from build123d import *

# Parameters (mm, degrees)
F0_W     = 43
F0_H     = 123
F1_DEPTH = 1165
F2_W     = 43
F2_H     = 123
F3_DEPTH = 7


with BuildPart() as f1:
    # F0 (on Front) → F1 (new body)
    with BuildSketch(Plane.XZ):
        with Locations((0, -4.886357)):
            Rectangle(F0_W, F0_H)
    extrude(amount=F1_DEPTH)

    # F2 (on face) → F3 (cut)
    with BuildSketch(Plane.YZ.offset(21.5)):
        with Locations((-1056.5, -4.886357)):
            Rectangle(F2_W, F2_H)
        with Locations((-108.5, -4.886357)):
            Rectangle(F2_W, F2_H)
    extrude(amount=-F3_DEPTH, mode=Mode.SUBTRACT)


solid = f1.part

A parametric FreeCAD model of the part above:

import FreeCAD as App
import Part
import Sketcher
Q = App.Units.Quantity

doc = App.newDocument("Part")
body = doc.addObject("PartDesign::Body", "Body")

# Sketch on XZ plane
sketch1 = body.newObject("Sketcher::SketchObject", "Sketch")
sketch1.AttachmentSupport = (doc.getObject("XZ_Plane"), [""])
sketch1.MapMode = "FlatFace"
sketch1.addGeometry(Part.LineSegment(App.Vector(-22, 57, 0), App.Vector(-22, -66, 0)), False)
sketch1.addGeometry(Part.LineSegment(App.Vector(-22, -66, 0), App.Vector(22, -66, 0)), False)
sketch1.addGeometry(Part.LineSegment(App.Vector(22, -66, 0), App.Vector(22, 57, 0)), False)
sketch1.addGeometry(Part.LineSegment(App.Vector(22, 57, 0), App.Vector(-22, 57, 0)), False)
sketch1.addConstraint(Sketcher.Constraint("Coincident", 0, 2, 1, 1))
sketch1.addConstraint(Sketcher.Constraint("Coincident", 1, 2, 2, 1))
sketch1.addConstraint(Sketcher.Constraint("Coincident", 2, 2, 3, 1))
sketch1.addConstraint(Sketcher.Constraint("Coincident", 3, 2, 0, 1))
sketch1.addConstraint(Sketcher.Constraint("Vertical", 0))
sketch1.addConstraint(Sketcher.Constraint("Horizontal", 1))
sketch1.addConstraint(Sketcher.Constraint("Vertical", 2))
sketch1.addConstraint(Sketcher.Constraint("Horizontal", 3))
sketch1.addConstraint(Sketcher.Constraint("DistanceX", 1, 1, 1, 2, Q("43 mm")))
sketch1.addConstraint(Sketcher.Constraint("DistanceY", 0, 2, 0, 1, Q("123 mm")))
sketch1.addConstraint(Sketcher.Constraint("DistanceX", 0, 2, -1, 1, Q("21.5 mm")))
sketch1.addConstraint(Sketcher.Constraint("DistanceY", 0, 2, -1, 1, Q("66.386357 mm")))
pad1 = body.newObject("PartDesign::Pad", "Pad")
pad1.Profile = sketch1
pad1.Length = 1165

# Sketch on YZ plane
sketch2 = body.newObject("Sketcher::SketchObject", "Sketch001")
sketch2.AttachmentSupport = (doc.getObject("YZ_Plane"), [""])
sketch2.MapMode = "FlatFace"
sketch2.AttachmentOffset = App.Placement(App.Vector(0, 0, 21.5), App.Rotation())
sketch2.addGeometry(Part.LineSegment(App.Vector(-1078, 57, 0), App.Vector(-1078, -66, 0)), False)
sketch2.addGeometry(Part.LineSegment(App.Vector(-1078, -66, 0), App.Vector(-1035, -66, 0)), False)
sketch2.addGeometry(Part.LineSegment(App.Vector(-1035, -66, 0), App.Vector(-1035, 57, 0)), False)
sketch2.addGeometry(Part.LineSegment(App.Vector(-1035, 57, 0), App.Vector(-1078, 57, 0)), False)
sketch2.addGeometry(Part.LineSegment(App.Vector(-130, 57, 0), App.Vector(-130, -66, 0)), False)
sketch2.addGeometry(Part.LineSegment(App.Vector(-130, -66, 0), App.Vector(-87, -66, 0)), False)
sketch2.addGeometry(Part.LineSegment(App.Vector(-87, -66, 0), App.Vector(-87, 57, 0)), False)
sketch2.addGeometry(Part.LineSegment(App.Vector(-87, 57, 0), App.Vector(-130, 57, 0)), False)
sketch2.addConstraint(Sketcher.Constraint("Coincident", 0, 2, 1, 1))
sketch2.addConstraint(Sketcher.Constraint("Coincident", 1, 2, 2, 1))
sketch2.addConstraint(Sketcher.Constraint("Coincident", 2, 2, 3, 1))
sketch2.addConstraint(Sketcher.Constraint("Coincident", 3, 2, 0, 1))
sketch2.addConstraint(Sketcher.Constraint("Coincident", 4, 2, 5, 1))
sketch2.addConstraint(Sketcher.Constraint("Coincident", 5, 2, 6, 1))
sketch2.addConstraint(Sketcher.Constraint("Coincident", 6, 2, 7, 1))
sketch2.addConstraint(Sketcher.Constraint("Coincident", 7, 2, 4, 1))
sketch2.addConstraint(Sketcher.Constraint("Vertical", 0))
sketch2.addConstraint(Sketcher.Constraint("Horizontal", 1))
sketch2.addConstraint(Sketcher.Constraint("Vertical", 2))
sketch2.addConstraint(Sketcher.Constraint("Horizontal", 3))
sketch2.addConstraint(Sketcher.Constraint("Vertical", 4))
sketch2.addConstraint(Sketcher.Constraint("Horizontal", 5))
sketch2.addConstraint(Sketcher.Constraint("Vertical", 6))
sketch2.addConstraint(Sketcher.Constraint("Horizontal", 7))
sketch2.addConstraint(Sketcher.Constraint("Horizontal", 1, 2, 4, 2))
sketch2.addConstraint(Sketcher.Constraint("Horizontal", 3, 2, 6, 2))
sketch2.addConstraint(Sketcher.Constraint("Equal", 3, 5))
sketch2.addConstraint(Sketcher.Constraint("DistanceX", 1, 1, 1, 2, Q("43 mm")))
sketch2.addConstraint(Sketcher.Constraint("DistanceY", 0, 2, 0, 1, Q("123 mm")))
sketch2.addConstraint(Sketcher.Constraint("DistanceX", 0, 2, -1, 1, Q("1078 mm")))
sketch2.addConstraint(Sketcher.Constraint("DistanceX", 4, 2, -1, 1, Q("130 mm")))
sketch2.addConstraint(Sketcher.Constraint("DistanceY", 0, 2, -1, 1, Q("66.386357 mm")))
pocket1 = body.newObject("PartDesign::Pocket", "Pocket")
pocket1.Profile = sketch2
pocket1.Length = 7

doc.recompute()
